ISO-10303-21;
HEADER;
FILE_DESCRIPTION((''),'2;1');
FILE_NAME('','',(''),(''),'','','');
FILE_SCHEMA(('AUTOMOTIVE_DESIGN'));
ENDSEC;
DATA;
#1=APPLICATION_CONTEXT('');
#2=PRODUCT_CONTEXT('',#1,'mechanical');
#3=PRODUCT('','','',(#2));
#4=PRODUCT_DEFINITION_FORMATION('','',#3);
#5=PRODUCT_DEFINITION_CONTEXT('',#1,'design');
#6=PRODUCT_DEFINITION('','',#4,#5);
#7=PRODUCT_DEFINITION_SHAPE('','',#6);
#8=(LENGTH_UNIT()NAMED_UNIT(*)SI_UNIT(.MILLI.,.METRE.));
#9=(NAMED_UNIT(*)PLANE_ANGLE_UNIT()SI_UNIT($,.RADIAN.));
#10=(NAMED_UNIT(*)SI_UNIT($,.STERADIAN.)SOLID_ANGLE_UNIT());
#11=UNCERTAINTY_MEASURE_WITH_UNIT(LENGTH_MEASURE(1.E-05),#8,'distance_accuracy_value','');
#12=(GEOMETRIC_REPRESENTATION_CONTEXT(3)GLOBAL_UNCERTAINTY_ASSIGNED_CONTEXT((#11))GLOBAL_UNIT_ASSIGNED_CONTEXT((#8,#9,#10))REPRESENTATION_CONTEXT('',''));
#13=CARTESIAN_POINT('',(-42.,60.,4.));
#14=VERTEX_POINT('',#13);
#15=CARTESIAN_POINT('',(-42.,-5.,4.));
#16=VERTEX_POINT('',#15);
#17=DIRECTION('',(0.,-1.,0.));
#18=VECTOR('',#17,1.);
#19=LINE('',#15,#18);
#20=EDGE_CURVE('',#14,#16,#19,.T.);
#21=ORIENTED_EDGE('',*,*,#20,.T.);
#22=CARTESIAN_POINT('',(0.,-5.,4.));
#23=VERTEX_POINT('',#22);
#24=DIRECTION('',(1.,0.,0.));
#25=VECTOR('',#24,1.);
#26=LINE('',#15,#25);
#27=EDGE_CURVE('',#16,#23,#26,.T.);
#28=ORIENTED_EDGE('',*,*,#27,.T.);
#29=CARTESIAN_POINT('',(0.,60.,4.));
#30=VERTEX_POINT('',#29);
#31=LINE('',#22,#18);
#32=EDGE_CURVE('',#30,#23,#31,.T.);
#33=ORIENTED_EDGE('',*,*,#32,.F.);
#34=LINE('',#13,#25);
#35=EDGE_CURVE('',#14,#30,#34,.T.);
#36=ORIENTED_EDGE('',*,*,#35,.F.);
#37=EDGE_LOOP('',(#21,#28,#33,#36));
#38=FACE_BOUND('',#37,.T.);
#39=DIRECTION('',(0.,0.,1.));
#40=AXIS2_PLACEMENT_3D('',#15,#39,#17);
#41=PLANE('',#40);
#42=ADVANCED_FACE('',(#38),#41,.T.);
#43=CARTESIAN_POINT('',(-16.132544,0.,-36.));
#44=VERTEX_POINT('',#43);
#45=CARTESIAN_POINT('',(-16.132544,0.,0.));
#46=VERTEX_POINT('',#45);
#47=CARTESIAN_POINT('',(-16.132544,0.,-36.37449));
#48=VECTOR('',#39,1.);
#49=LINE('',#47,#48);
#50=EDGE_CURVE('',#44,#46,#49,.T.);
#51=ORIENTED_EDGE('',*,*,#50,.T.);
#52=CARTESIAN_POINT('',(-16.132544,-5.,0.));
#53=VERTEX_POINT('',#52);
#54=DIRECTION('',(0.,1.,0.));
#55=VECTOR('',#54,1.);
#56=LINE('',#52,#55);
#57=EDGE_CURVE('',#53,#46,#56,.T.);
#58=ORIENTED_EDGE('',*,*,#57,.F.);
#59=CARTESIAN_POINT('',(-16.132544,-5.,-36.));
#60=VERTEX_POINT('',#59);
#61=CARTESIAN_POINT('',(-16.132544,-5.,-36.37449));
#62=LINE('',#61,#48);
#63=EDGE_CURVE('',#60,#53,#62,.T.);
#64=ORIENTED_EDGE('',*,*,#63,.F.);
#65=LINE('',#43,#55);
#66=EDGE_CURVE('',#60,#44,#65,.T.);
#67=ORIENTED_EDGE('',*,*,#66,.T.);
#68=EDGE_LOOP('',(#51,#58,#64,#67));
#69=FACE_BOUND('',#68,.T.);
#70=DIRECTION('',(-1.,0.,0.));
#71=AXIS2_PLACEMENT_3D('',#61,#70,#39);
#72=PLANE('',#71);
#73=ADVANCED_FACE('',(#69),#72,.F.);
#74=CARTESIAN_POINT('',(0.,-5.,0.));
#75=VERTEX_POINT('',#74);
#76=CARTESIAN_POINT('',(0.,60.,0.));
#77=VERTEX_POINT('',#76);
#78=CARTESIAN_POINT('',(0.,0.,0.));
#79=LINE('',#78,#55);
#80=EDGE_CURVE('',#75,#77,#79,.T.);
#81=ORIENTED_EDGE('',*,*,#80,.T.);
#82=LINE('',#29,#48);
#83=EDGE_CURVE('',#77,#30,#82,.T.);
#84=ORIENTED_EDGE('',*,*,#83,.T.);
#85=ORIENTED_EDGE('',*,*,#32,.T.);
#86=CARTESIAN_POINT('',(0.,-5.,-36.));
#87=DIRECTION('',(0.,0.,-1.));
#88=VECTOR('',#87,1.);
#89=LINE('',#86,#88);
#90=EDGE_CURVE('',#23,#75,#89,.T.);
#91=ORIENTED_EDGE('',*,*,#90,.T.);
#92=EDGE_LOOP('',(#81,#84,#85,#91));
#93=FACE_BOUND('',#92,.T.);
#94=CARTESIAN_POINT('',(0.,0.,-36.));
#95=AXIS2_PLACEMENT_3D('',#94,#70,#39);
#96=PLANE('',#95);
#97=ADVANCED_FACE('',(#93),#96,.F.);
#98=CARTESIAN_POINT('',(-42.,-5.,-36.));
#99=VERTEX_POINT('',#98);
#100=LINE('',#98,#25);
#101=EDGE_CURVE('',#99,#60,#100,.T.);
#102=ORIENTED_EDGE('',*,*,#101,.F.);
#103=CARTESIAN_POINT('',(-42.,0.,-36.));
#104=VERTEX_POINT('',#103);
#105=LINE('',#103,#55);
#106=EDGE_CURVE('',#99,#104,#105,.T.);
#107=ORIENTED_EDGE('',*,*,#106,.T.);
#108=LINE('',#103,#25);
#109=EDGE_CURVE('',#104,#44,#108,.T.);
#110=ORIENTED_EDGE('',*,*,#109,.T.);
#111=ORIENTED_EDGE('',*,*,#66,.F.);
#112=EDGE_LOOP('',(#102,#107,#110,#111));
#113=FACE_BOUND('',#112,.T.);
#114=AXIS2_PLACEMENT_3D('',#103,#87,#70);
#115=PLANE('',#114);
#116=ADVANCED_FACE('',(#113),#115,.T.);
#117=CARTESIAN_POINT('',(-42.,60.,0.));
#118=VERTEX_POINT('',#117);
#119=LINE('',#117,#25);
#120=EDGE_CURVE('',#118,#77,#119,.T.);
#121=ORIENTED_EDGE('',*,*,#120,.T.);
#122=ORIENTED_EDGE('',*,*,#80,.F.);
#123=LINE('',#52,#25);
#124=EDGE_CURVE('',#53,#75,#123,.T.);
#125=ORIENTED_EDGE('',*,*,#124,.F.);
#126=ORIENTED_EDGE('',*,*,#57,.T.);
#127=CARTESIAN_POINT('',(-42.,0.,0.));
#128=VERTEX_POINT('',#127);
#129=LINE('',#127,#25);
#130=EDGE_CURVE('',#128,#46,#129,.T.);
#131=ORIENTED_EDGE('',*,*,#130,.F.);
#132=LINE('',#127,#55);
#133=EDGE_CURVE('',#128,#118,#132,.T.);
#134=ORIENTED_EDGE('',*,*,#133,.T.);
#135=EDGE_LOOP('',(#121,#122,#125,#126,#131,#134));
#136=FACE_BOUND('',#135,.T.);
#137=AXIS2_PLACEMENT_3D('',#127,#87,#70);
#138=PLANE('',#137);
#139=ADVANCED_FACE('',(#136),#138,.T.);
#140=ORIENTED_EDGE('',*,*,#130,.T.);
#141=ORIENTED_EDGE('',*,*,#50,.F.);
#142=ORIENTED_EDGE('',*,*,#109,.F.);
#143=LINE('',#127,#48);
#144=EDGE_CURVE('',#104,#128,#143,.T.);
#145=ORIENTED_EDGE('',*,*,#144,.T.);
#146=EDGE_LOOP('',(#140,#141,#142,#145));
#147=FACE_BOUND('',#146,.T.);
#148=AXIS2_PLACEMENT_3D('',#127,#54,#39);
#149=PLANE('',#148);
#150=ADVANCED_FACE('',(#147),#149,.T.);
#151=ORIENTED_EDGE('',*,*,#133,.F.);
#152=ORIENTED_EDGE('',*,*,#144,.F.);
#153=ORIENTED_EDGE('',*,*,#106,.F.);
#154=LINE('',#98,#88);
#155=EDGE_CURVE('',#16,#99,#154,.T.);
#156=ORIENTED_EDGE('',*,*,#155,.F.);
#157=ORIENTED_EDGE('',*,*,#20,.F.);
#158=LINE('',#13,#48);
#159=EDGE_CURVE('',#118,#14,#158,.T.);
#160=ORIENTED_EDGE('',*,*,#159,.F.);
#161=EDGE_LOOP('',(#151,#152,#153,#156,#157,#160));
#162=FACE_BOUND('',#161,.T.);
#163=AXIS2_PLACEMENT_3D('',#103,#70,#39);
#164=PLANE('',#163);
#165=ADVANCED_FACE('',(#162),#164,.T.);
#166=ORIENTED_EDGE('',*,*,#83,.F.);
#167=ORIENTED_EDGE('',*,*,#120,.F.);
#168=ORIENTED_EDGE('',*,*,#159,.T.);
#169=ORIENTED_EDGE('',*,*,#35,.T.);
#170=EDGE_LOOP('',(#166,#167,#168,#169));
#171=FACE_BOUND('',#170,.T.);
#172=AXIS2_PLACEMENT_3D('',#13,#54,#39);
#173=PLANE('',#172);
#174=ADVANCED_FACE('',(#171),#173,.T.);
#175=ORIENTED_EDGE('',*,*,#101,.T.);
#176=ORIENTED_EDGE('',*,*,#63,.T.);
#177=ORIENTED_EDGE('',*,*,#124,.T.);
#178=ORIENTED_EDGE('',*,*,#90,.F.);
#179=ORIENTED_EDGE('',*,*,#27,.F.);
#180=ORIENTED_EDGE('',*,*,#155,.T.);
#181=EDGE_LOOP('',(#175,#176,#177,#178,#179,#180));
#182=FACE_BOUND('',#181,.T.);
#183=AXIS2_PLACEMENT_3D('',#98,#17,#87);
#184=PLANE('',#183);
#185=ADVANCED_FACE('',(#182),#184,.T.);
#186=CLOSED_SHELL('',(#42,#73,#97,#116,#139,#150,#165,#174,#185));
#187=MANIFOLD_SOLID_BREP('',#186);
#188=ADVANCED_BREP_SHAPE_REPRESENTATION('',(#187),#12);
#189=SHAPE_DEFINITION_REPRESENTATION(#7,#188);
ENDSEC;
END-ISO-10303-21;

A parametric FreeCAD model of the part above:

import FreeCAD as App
import Part
import Sketcher
from FreeCAD import Vector


def add_polygon(sketch, points):
    """Adds a closed chain of lines whose ends are joined by coincident constraints."""
    first, n = sketch.GeometryCount, len(points)
    for a, b in zip(points, points[1:] + points[:1]):
        sketch.addGeometry(Part.LineSegment(App.Vector(*a, 0), App.Vector(*b, 0)), False)
    for i in range(n):
        sketch.addConstraint(Sketcher.Constraint("Coincident", first + i, 2, first + (i + 1) % n, 1))

doc = App.newDocument("Part")
params = doc.addObject("Spreadsheet::Sheet", "Params")
for row, (alias, value) in enumerate([
    ("sketch1_width", "60 mm"),
    ("sketch1_width2", "65 mm"),
    ("sketch1_height", "4 mm"),
    ("sketch1_height2", "40 mm"),
    ("pad1_length", "42 mm"),
], start=1):
    params.set(f"A{row}", alias)
    params.set(f"B{row}", "=" + value)
    params.setAlias(f"B{row}", alias)

body = doc.addObject("PartDesign::Body", "Body")

sketch1 = doc.addObject("Sketcher::SketchObject", "Sketch")
body.addObject(sketch1)
sketch1.AttachmentSupport = (doc.YZ_Plane, [""])
sketch1.MapMode = "FlatFace"
add_polygon(sketch1, [(0, 0), (60, 0), (60, 4), (-5, 4), (-5, -36), (0, -36)])
sketch1.addConstraint(Sketcher.Constraint("Horizontal", 0))
sketch1.addConstraint(Sketcher.Constraint("Vertical", 1))
sketch1.addConstraint(Sketcher.Constraint("Horizontal", 2))
sketch1.addConstraint(Sketcher.Constraint("Vertical", 3))
sketch1.addConstraint(Sketcher.Constraint("Horizontal", 4))
sketch1.addConstraint(Sketcher.Constraint("Vertical", 5))
sketch1.addConstraint(Sketcher.Constraint("Coincident", 5, 2, -1, 1))
sketch1.addConstraint(Sketcher.Constraint("DistanceX", 0, 1, 0, 2, 60.0))
sketch1.addConstraint(Sketcher.Constraint("DistanceX", 2, 2, 2, 1, 65.0))
sketch1.addConstraint(Sketcher.Constraint("DistanceY", 1, 1, 1, 2, 4.0))
sketch1.addConstraint(Sketcher.Constraint("DistanceY", 3, 2, 3, 1, 40.0))
sketch1.setExpression("Constraints[13]", "Params.sketch1_width")
sketch1.setExpression("Constraints[14]", "Params.sketch1_width2")
sketch1.setExpression("Constraints[15]", "Params.sketch1_height")
sketch1.setExpression("Constraints[16]", "Params.sketch1_height2")
pad1 = doc.addObject("PartDesign::Pad", "Pad")
body.addObject(pad1)
pad1.Profile = sketch1
pad1.setExpression("Length", "Params.pad1_length")
pad1.Reversed = True

sketch2 = doc.addObject("Sketcher::SketchObject", "Sketch001")
body.addObject(sketch2)
sketch2.AttachmentSupport = (doc.XZ_Plane, [""])
sketch2.MapMode = "FlatFace"
add_polygon(sketch2, [(-16, -36), (-16, 0), (0, 0), (0, -36)])
sketch2.addConstraint(Sketcher.Constraint("Vertical", 0))
sketch2.addConstraint(Sketcher.Constraint("Horizontal", 1))
sketch2.addConstraint(Sketcher.Constraint("Vertical", 2))
sketch2.addConstraint(Sketcher.Constraint("Horizontal", 3))
sketch2.addConstraint(Sketcher.Constraint("Coincident", 1, 2, -1, 1))
sketch2.addConstraint(Sketcher.Constraint("DistanceY", 0, 1, 0, 2, 36.37449))
sketch2.addConstraint(Sketcher.Constraint("DistanceX", 1, 1, 1, 2, 16.132544))
pocket1 = doc.addObject("PartDesign::Pocket", "Pocket")
body.addObject(pocket1)
pocket1.Profile = sketch2
pocket1.Type = "ThroughAll"
pocket1.Reversed = True

doc.recompute()
